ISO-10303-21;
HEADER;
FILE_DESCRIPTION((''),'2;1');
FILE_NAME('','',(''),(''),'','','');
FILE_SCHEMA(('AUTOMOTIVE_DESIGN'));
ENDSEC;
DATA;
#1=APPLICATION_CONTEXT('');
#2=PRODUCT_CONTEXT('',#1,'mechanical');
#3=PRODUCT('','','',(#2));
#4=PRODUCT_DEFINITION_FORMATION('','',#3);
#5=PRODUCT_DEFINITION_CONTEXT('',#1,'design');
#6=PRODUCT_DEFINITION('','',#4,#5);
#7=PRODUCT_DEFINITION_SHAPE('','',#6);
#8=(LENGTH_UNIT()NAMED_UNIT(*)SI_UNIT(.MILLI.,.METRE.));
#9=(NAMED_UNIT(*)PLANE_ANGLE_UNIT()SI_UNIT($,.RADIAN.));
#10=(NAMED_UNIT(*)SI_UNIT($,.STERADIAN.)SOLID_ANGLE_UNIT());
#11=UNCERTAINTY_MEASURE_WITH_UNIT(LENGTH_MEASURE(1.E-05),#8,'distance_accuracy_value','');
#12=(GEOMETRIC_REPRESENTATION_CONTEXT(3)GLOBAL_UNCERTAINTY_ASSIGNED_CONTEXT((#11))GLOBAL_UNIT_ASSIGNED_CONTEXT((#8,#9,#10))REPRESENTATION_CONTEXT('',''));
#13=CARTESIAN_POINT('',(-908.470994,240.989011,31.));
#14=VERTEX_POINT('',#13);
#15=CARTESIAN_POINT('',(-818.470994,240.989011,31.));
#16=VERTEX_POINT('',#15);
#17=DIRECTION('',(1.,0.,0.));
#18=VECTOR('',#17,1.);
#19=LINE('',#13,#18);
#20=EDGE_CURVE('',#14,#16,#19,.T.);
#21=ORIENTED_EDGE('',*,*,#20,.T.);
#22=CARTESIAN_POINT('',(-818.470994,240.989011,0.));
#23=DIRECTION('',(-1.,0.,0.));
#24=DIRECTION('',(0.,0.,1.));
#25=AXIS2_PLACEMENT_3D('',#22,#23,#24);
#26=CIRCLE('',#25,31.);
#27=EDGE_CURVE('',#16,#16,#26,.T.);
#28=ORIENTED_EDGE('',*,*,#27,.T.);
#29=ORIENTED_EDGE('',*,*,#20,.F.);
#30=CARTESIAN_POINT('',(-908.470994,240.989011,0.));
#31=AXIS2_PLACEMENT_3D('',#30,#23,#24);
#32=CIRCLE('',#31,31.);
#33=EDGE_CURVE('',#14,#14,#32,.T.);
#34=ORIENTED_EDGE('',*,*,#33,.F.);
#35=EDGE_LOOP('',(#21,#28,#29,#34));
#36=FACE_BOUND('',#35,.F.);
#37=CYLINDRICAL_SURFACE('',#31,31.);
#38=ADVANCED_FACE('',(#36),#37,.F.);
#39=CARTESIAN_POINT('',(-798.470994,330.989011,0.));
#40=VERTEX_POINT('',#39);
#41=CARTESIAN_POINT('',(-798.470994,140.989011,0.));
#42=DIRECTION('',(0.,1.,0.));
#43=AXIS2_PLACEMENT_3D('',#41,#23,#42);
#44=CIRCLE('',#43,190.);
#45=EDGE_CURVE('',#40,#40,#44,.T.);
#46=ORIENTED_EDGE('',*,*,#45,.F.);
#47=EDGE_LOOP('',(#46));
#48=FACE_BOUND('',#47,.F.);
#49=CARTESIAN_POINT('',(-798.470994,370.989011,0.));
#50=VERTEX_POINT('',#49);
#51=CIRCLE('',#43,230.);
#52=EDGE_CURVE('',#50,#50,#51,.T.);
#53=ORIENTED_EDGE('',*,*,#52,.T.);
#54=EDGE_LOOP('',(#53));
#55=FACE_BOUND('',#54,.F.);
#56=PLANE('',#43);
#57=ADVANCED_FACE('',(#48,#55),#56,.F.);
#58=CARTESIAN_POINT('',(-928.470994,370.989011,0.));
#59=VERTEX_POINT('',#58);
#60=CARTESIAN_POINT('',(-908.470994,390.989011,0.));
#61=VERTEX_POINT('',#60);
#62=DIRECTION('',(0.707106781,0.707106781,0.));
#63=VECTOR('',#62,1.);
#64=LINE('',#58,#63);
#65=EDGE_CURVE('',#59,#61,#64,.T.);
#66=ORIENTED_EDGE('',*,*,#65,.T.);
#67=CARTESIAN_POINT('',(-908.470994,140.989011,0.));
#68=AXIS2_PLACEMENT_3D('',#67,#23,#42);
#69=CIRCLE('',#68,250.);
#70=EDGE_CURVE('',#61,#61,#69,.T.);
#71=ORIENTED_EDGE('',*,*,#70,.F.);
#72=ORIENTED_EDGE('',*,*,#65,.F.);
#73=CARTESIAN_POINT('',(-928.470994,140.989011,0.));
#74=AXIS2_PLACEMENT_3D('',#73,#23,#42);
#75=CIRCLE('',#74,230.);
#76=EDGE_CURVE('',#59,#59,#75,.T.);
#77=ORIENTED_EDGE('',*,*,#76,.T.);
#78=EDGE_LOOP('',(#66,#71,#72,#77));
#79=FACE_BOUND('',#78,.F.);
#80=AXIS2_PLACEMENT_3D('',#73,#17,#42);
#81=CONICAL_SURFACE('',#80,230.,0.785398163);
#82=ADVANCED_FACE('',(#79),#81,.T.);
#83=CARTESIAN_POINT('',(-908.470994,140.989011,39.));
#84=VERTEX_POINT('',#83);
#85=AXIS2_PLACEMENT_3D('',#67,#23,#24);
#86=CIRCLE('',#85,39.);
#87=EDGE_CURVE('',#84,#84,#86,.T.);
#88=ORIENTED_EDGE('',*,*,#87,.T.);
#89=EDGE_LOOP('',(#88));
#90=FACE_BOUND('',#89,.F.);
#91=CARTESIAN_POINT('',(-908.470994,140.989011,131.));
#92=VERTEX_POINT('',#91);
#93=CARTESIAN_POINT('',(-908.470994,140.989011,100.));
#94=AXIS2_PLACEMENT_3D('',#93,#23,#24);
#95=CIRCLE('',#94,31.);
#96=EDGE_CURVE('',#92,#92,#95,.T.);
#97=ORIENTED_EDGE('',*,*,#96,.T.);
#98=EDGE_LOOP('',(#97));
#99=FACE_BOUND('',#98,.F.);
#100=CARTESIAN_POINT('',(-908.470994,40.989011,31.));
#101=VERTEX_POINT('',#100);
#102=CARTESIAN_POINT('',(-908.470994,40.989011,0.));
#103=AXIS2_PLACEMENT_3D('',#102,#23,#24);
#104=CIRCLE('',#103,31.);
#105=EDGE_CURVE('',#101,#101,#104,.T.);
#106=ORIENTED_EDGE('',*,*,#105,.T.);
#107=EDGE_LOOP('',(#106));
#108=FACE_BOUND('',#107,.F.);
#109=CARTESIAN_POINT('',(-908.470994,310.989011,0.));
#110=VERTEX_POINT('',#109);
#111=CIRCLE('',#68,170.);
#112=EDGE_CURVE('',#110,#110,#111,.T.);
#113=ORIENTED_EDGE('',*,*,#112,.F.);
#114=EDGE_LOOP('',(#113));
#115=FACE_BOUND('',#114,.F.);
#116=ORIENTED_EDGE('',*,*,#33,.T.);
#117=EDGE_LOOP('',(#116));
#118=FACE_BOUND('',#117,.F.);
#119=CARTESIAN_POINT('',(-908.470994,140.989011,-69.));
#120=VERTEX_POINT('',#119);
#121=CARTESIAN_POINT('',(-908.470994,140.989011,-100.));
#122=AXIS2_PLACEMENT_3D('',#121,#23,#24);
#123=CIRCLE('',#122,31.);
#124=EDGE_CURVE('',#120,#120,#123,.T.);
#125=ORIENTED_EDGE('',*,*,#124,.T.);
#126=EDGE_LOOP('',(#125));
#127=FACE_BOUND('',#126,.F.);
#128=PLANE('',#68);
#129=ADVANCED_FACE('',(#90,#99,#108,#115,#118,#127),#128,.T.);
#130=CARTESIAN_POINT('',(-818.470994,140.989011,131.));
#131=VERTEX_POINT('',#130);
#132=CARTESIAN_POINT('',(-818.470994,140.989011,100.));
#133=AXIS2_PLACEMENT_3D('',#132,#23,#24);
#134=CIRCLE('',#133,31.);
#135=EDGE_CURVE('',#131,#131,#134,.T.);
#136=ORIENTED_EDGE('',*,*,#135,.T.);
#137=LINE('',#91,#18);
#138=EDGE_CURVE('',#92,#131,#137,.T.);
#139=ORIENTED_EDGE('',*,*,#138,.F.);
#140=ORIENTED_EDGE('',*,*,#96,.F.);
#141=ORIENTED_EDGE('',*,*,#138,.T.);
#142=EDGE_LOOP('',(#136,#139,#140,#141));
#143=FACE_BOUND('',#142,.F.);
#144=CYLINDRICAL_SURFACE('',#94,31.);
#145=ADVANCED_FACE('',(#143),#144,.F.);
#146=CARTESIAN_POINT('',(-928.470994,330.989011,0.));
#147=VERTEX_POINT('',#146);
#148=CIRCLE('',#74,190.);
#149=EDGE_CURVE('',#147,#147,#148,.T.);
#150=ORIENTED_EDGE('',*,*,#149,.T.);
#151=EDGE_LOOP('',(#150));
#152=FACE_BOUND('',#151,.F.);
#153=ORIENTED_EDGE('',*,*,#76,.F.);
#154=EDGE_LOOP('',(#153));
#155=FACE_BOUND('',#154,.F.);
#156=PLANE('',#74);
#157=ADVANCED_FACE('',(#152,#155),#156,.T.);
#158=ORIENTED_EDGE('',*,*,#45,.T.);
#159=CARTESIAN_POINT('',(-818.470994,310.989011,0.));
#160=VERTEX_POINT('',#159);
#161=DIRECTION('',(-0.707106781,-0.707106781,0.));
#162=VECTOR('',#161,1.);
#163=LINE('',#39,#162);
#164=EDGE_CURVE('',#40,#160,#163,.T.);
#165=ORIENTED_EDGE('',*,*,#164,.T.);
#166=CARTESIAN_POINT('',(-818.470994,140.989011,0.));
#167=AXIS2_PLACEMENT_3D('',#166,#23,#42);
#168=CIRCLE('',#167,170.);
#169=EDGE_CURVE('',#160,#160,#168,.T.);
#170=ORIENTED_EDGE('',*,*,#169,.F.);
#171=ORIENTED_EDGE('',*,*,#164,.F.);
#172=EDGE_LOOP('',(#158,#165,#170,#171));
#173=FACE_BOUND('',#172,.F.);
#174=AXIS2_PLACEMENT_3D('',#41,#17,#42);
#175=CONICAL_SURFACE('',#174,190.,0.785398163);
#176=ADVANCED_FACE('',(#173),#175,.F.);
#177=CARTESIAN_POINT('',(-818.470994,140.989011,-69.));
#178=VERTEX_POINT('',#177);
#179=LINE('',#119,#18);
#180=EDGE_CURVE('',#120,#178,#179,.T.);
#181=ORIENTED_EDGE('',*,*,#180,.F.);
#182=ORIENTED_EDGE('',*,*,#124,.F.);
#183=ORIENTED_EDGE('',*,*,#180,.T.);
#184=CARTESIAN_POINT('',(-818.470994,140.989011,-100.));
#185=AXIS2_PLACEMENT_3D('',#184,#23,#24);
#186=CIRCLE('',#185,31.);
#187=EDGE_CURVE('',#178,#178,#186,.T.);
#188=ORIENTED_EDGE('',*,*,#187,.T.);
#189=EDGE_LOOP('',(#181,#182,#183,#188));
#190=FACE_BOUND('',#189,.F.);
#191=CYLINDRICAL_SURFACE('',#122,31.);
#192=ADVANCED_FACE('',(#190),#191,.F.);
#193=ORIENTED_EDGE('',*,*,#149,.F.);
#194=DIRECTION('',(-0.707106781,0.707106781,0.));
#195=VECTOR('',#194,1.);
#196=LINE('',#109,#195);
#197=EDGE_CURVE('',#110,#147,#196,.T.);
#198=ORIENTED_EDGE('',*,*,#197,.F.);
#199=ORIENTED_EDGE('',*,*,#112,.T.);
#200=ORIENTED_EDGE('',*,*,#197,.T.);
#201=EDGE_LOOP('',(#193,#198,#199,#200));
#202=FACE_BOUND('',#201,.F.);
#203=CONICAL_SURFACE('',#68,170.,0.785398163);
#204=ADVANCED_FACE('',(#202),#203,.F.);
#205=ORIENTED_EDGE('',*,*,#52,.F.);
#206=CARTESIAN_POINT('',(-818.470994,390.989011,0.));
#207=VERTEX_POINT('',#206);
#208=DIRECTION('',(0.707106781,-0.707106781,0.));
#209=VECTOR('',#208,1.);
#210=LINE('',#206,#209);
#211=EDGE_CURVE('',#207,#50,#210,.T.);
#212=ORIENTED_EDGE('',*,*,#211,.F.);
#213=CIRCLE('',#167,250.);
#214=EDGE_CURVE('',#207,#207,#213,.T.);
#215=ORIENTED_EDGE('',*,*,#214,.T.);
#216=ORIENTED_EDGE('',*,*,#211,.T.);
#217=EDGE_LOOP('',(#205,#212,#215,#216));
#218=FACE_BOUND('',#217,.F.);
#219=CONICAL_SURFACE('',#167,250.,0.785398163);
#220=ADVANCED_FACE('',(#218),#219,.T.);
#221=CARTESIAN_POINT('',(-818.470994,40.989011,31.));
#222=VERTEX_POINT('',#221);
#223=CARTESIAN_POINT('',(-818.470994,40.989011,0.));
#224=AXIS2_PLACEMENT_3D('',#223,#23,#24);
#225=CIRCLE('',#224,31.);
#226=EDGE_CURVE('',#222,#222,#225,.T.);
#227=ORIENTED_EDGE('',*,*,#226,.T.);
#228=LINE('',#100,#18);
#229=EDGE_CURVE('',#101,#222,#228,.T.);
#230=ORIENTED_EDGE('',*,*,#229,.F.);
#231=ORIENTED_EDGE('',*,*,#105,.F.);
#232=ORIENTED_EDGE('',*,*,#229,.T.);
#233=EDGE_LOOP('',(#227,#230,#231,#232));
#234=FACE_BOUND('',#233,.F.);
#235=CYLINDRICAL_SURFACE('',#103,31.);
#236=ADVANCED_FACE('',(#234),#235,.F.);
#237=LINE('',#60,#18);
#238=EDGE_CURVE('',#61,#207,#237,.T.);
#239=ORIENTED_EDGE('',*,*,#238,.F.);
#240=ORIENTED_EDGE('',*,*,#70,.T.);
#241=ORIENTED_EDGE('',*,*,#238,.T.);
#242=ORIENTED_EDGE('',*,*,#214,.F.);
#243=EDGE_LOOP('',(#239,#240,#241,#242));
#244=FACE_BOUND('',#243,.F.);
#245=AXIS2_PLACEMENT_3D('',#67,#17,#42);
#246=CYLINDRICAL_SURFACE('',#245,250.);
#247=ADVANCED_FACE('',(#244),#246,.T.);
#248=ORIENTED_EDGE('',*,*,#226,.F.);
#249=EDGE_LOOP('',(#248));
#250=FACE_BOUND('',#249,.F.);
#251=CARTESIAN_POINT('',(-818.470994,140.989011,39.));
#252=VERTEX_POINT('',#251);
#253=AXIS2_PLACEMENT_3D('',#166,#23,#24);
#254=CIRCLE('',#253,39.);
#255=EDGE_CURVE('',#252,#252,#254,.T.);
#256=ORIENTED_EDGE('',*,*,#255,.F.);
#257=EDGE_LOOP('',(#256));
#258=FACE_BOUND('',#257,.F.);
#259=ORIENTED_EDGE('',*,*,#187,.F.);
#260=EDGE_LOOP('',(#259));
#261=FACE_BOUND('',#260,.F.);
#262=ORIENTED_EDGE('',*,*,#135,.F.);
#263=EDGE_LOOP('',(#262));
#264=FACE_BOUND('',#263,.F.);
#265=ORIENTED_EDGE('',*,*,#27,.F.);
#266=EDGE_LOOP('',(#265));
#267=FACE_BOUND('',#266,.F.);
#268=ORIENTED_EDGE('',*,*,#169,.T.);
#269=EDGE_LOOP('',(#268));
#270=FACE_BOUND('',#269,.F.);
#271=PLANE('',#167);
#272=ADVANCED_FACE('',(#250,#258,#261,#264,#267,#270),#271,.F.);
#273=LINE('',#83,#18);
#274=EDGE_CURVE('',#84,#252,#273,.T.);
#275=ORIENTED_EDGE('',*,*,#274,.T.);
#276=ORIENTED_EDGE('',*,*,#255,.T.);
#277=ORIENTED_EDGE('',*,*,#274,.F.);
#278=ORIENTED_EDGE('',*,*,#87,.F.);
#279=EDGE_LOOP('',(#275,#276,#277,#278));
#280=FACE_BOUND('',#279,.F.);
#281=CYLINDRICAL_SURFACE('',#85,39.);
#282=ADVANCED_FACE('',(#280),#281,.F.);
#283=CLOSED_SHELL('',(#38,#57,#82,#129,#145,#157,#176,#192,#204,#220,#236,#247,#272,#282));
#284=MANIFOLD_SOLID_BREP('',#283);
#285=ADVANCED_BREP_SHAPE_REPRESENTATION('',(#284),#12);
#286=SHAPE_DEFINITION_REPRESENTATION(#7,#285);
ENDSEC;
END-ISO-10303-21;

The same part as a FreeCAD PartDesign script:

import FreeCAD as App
import Part
import Sketcher

V = App.Vector


def add_polygon(sketch, points):
    """Adds a closed chain of lines whose ends are joined by coincident constraints."""
    first, n = sketch.GeometryCount, len(points)
    for a, b in zip(points, points[1:] + points[:1]):
        sketch.addGeometry(Part.LineSegment(App.Vector(*a, 0), App.Vector(*b, 0)), False)
    for i in range(n):
        sketch.addConstraint(Sketcher.Constraint("Coincident", first + i, 2, first + (i + 1) % n, 1))

doc = App.newDocument("Part")
body = doc.addObject("PartDesign::Body", "Body")

# Sketch on XY plane
sketch1 = body.newObject("Sketcher::SketchObject", "Sketch")
sketch1.AttachmentSupport = (doc.getObject("XY_Plane"), [""])
sketch1.MapMode = "FlatFace"
add_polygon(sketch1, [(-798, 371), (-818, 391), (-908, 391), (-928, 371), (-928, 331), (-908, 311), (-908, 141), (-818, 141), (-818, 311), (-798, 331)])  # lines 0-9
sketch1.addGeometry(Part.LineSegment(V(-798, 141, 0), V(-928, 141, 0)), True)  # axis
sketch1.addConstraint([
    Sketcher.Constraint("Horizontal", 1),
    Sketcher.Constraint("Vertical", 3),
    Sketcher.Constraint("Vertical", 5),
    Sketcher.Constraint("Horizontal", 6),
    Sketcher.Constraint("Vertical", 7),
    Sketcher.Constraint("Vertical", 9),
    Sketcher.Constraint("Horizontal", 10),
    Sketcher.Constraint("Perpendicular", 0, 2),
    Sketcher.Constraint("Perpendicular", 2, 4),
    Sketcher.Constraint("Perpendicular", 4, 8),
    Sketcher.Constraint("Horizontal", 4, 2, 7, 2),
    Sketcher.Constraint("Horizontal", 3, 2, 8, 2),
    Sketcher.Constraint("Horizontal", 2, 2, 9, 2),
    Sketcher.Constraint("Horizontal", 6, 2, 10, 1),
    Sketcher.Constraint("Vertical", 1, 2, 4, 2),
    Sketcher.Constraint("Vertical", 0, 2, 6, 2),
    Sketcher.Constraint("Vertical", 9, 2, 10, 1),
    Sketcher.Constraint("Vertical", 3, 2, 10, 2),
    Sketcher.Constraint("DistanceX", 1, 2, 1, 1, 90.0),
    Sketcher.Constraint("DistanceX", 10, 2, 10, 1, 130.0),
    Sketcher.Constraint("DistanceY", 3, 2, 3, 1, 40.0),
    Sketcher.Constraint("DistanceY", 5, 2, 5, 1, 170.0),
    Sketcher.Constraint("DistanceY", -1, 1, 0, 2, 390.989011),
    Sketcher.Constraint("DistanceX", 0, 2, -1, 1, 818.470994),
])
revolution = body.newObject("PartDesign::Revolution", "Revolution")
revolution.Profile = sketch1
revolution.ReferenceAxis = (sketch1, ["Axis0"])
revolution.Angle = 360

# Sketch on YZ plane
sketch2 = body.newObject("Sketcher::SketchObject", "Sketch001")
sketch2.AttachmentSupport = (doc.getObject("YZ_Plane"), [""])
sketch2.MapMode = "FlatFace"
sketch2.AttachmentOffset = App.Placement(V(0, 0, -908.470994), App.Rotation())
sketch2.addGeometry([
    Part.Circle(V(141, 0, 0), V(0, 0, 1), 39),  # 0
    Part.Circle(V(141, -100, 0), V(0, 0, 1), 31),  # 1
    Part.Circle(V(241, 0, 0), V(0, 0, 1), 31),  # 2
    Part.Circle(V(141, 100, 0), V(0, 0, 1), 31),  # 3
    Part.Circle(V(41, 0, 0), V(0, 0, 1), 31),  # 4
], False)
sketch2.addConstraint([
    Sketcher.Constraint("Equal", 1, 2),
    Sketcher.Constraint("Equal", 2, 3),
    Sketcher.Constraint("Equal", 3, 4),
    Sketcher.Constraint("Symmetric", 1, 3, 3, 3, -1),
    Sketcher.Constraint("PointOnObject", 0, 3, -1),
    Sketcher.Constraint("PointOnObject", 2, 3, -1),
    Sketcher.Constraint("PointOnObject", 4, 3, -1),
    Sketcher.Constraint("Vertical", 0, 3, 1, 3),
    Sketcher.Constraint("Diameter", 0, 78.0),
    Sketcher.Constraint("Diameter", 1, 62.0),
    Sketcher.Constraint("DistanceY", 1, 3, -1, 1, 100.0),
    Sketcher.Constraint("DistanceX", 0, 3, 2, 3, 100.0),
    Sketcher.Constraint("DistanceX", 4, 3, 0, 3, 100.0),
    Sketcher.Constraint("DistanceX", -1, 1, 0, 3, 140.989011),
])
pocket1 = body.newObject("PartDesign::Pocket", "Pocket")
pocket1.Profile = sketch2
pocket1.Type = "ThroughAll"
pocket1.Reversed = True

doc.recompute()
